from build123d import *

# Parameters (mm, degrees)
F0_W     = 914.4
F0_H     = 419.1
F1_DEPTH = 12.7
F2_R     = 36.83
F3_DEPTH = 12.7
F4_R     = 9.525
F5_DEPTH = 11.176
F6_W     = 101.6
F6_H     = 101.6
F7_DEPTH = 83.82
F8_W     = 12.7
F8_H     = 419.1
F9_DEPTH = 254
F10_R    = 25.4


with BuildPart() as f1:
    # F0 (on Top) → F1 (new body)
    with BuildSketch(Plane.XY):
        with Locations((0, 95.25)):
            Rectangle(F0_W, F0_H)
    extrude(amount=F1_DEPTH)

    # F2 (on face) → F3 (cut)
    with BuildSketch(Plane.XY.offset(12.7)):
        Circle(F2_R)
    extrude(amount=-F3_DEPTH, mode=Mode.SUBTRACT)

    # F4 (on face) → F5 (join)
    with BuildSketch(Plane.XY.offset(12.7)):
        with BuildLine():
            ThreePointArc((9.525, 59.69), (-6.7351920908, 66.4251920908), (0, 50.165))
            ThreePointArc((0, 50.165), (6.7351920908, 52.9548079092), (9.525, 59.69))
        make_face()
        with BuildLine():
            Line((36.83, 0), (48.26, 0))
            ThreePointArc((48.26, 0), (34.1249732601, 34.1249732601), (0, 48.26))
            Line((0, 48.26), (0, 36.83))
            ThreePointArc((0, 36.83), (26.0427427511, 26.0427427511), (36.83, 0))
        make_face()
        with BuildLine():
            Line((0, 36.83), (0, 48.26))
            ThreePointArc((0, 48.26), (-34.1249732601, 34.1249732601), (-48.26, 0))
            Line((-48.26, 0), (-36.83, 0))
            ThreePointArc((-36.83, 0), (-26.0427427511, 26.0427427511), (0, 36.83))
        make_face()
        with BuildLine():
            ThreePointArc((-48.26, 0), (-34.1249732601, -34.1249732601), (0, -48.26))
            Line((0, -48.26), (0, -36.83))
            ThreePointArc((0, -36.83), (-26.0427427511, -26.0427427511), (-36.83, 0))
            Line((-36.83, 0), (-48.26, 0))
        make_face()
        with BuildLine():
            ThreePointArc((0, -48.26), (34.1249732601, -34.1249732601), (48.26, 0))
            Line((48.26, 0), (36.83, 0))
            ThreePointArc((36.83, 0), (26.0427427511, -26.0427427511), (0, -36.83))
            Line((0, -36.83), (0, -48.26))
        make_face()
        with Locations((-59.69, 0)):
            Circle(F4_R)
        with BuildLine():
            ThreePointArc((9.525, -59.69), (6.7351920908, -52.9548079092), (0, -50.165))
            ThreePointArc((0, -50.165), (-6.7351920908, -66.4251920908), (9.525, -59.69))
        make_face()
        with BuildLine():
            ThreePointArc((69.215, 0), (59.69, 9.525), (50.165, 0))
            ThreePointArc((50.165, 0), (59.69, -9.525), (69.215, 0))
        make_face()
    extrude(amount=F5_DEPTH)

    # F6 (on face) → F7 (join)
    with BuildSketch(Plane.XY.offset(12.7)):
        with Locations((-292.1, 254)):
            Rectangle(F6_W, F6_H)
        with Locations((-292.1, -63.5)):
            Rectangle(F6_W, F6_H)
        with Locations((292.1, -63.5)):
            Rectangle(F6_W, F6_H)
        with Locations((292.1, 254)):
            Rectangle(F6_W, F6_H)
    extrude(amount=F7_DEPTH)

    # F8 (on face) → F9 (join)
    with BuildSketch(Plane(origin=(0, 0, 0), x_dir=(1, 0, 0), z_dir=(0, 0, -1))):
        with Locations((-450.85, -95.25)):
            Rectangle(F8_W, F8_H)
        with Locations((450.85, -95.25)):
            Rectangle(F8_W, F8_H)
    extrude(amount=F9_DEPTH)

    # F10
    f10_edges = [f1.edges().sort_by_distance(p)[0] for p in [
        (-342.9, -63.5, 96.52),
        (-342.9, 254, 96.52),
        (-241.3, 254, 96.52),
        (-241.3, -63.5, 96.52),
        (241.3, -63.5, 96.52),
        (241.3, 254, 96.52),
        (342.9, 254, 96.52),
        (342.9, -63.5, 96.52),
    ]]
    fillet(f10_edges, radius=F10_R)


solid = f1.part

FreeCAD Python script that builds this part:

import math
import FreeCAD as App
import Part
import Sketcher
from FreeCAD import Vector
Q = App.Units.Quantity


def edges_at(feature, points):
    """Names of the edges that pass closest to the given points."""
    edges = feature.Shape.Edges
    near = lambda p: min(range(len(edges)), key=lambda i: edges[i].distToShape(Part.Vertex(*p))[0])
    return sorted({f"Edge{near(p) + 1}" for p in points})

doc = App.newDocument("Part")
body = doc.addObject("PartDesign::Body", "Body")

# Sketch on XY plane
sketch1 = doc.addObject("Sketcher::SketchObject", "Sketch")
body.addObject(sketch1)
sketch1.AttachmentSupport = (doc.XY_Plane, [""])
sketch1.MapMode = "FlatFace"
sketch1.addGeometry([
    Part.LineSegment(Vector(-457.2, 304.8, 0), Vector(-457.2, -114.3, 0)),
    Part.LineSegment(Vector(-457.2, -114.3, 0), Vector(457.2, -114.3, 0)),
    Part.LineSegment(Vector(457.2, -114.3, 0), Vector(457.2, 304.8, 0)),
    Part.LineSegment(Vector(457.2, 304.8, 0), Vector(-457.2, 304.8, 0)),
], False)
sketch1.addConstraint([
    Sketcher.Constraint("Coincident", 0, 2, 1, 1),
    Sketcher.Constraint("Coincident", 1, 2, 2, 1),
    Sketcher.Constraint("Coincident", 2, 2, 3, 1),
    Sketcher.Constraint("Coincident", 3, 2, 0, 1),
    Sketcher.Constraint("Vertical", 0),
    Sketcher.Constraint("Horizontal", 1),
    Sketcher.Constraint("Vertical", 2),
    Sketcher.Constraint("Horizontal", 3),
    Sketcher.Constraint("DistanceX", 1, 1, 1, 2, Q("36 in")),
    Sketcher.Constraint("DistanceY", 0, 2, 0, 1, Q("16.5 in")),
    Sketcher.Constraint("DistanceX", 0, 2, -1, 1, Q("18 in")),
    Sketcher.Constraint("DistanceY", -1, 1, 2, 2, Q("12 in")),
])
pad1 = doc.addObject("PartDesign::Pad", "Pad")
body.addObject(pad1)
pad1.Profile = sketch1
pad1.Length = Q("0.5 in")

# Sketch on XY plane
sketch2 = doc.addObject("Sketcher::SketchObject", "Sketch001")
body.addObject(sketch2)
sketch2.AttachmentSupport = (doc.XY_Plane, [""])
sketch2.MapMode = "FlatFace"
sketch2.AttachmentOffset = App.Placement(Vector(0, 0, 0.5 * 25.4), App.Rotation())
sketch2.addGeometry(Part.Circle(Vector(0, 0, 0), Vector(0, 0, 1), 36.83), False)
sketch2.addConstraint([
    Sketcher.Constraint("Coincident", 0, 3, -1, 1),
    Sketcher.Constraint("Diameter", 0, Q("2.9 in")),
])
pocket1 = doc.addObject("PartDesign::Pocket", "Pocket")
body.addObject(pocket1)
pocket1.Profile = sketch2
pocket1.Length = Q("0.5 in")

# Sketch on XY plane
sketch3 = doc.addObject("Sketcher::SketchObject", "Sketch002")
body.addObject(sketch3)
sketch3.AttachmentSupport = (doc.XY_Plane, [""])
sketch3.MapMode = "FlatFace"
sketch3.AttachmentOffset = App.Placement(Vector(0, 0, 0.5 * 25.4), App.Rotation())
sketch3.addGeometry([
    Part.Circle(Vector(0, 59.69, 0), Vector(0, 0, 1), 9.525),  # 0
    Part.ArcOfCircle(Part.Circle(Vector(0, 0, 0), Vector(0, 0, 1), 48.26), math.radians(0), math.radians(90)),  # 1
    Part.ArcOfCircle(Part.Circle(Vector(0, 0, 0), Vector(0, 0, 1), 48.26), math.radians(90), math.radians(180)),  # 2
    Part.ArcOfCircle(Part.Circle(Vector(0, 0, 0), Vector(0, 0, 1), 48.26), math.radians(180), math.radians(270)),  # 3
    Part.ArcOfCircle(Part.Circle(Vector(0, 0, 0), Vector(0, 0, 1), 48.26), math.radians(-90), math.radians(0)),  # 4
    Part.Circle(Vector(0, 0, 0), Vector(0, 0, 1), 36.83),  # 5
    Part.Circle(Vector(-59.69, 0, 0), Vector(0, 0, 1), 9.525),  # 6
    Part.Circle(Vector(0, -59.69, 0), Vector(0, 0, 1), 9.525),  # 7
    Part.Circle(Vector(59.69, 0, 0), Vector(0, 0, 1), 9.525),  # 8
], False)
sketch3.addConstraint([
    Sketcher.Constraint("Tangent", 1, 2, 2, 1),
    Sketcher.Constraint("Tangent", 2, 2, 3, 1),
    Sketcher.Constraint("Tangent", 3, 2, 4, 1),
    Sketcher.Constraint("Tangent", 4, 2, 1, 1),
    Sketcher.Constraint("Coincident", 1, 3, -1, 1),
    Sketcher.Constraint("Coincident", 5, 3, -1, 1),
    Sketcher.Constraint("Equal", 1, 2),
    Sketcher.Constraint("Equal", 0, 6),
    Sketcher.Constraint("Equal", 6, 7),
    Sketcher.Constraint("Equal", 7, 8),
    Sketcher.Constraint("Symmetric", 0, 3, 7, 3, -1, 1),
    Sketcher.Constraint("Symmetric", 6, 3, 8, 3, -1, 1),
    Sketcher.Constraint("PointOnObject", 0, 3, -2),
    Sketcher.Constraint("PointOnObject", 6, 3, -1),
    Sketcher.Constraint("PointOnObject", 1, 2, -2),
    Sketcher.Constraint("PointOnObject", 2, 2, -1),
    Sketcher.Constraint("PointOnObject", 3, 2, -2),
    Sketcher.Constraint("PointOnObject", 4, 2, -1),
    Sketcher.Constraint("Diameter", 5, Q("2.9 in")),
    Sketcher.Constraint("Radius", 1, Q("1.9 in")),
    Sketcher.Constraint("Diameter", 0, Q("0.75 in")),
    Sketcher.Constraint("DistanceY", -1, 1, 0, 3, Q("2.35 in")),
    Sketcher.Constraint("DistanceX", 6, 3, -1, 1, Q("2.35 in")),
])
pad2 = doc.addObject("PartDesign::Pad", "Pad001")
body.addObject(pad2)
pad2.Profile = sketch3
pad2.Length = Q("0.44 in")

# Sketch on XY plane
sketch4 = doc.addObject("Sketcher::SketchObject", "Sketch003")
body.addObject(sketch4)
sketch4.AttachmentSupport = (doc.XY_Plane, [""])
sketch4.MapMode = "FlatFace"
sketch4.AttachmentOffset = App.Placement(Vector(0, 0, 0.5 * 25.4), App.Rotation())
sketch4.addGeometry([
    Part.LineSegment(Vector(-342.9, 304.8, 0), Vector(-342.9, 203.2, 0)),  # 0
    Part.LineSegment(Vector(-342.9, 203.2, 0), Vector(-241.3, 203.2, 0)),  # 1
    Part.LineSegment(Vector(-241.3, 203.2, 0), Vector(-241.3, 304.8, 0)),  # 2
    Part.LineSegment(Vector(-241.3, 304.8, 0), Vector(-342.9, 304.8, 0)),  # 3
    Part.LineSegment(Vector(-342.9, -12.7, 0), Vector(-342.9, -114.3, 0)),  # 4
    Part.LineSegment(Vector(-342.9, -114.3, 0), Vector(-241.3, -114.3, 0)),  # 5
    Part.LineSegment(Vector(-241.3, -114.3, 0), Vector(-241.3, -12.7, 0)),  # 6
    Part.LineSegment(Vector(-241.3, -12.7, 0), Vector(-342.9, -12.7, 0)),  # 7
    Part.LineSegment(Vector(241.3, -12.7, 0), Vector(241.3, -114.3, 0)),  # 8
    Part.LineSegment(Vector(241.3, -114.3, 0), Vector(342.9, -114.3, 0)),  # 9
    Part.LineSegment(Vector(342.9, -114.3, 0), Vector(342.9, -12.7, 0)),  # 10
    Part.LineSegment(Vector(342.9, -12.7, 0), Vector(241.3, -12.7, 0)),  # 11
    Part.LineSegment(Vector(241.3, 304.8, 0), Vector(241.3, 203.2, 0)),  # 12
    Part.LineSegment(Vector(241.3, 203.2, 0), Vector(342.9, 203.2, 0)),  # 13
    Part.LineSegment(Vector(342.9, 203.2, 0), Vector(342.9, 304.8, 0)),  # 14
    Part.LineSegment(Vector(342.9, 304.8, 0), Vector(241.3, 304.8, 0)),  # 15
], False)
sketch4.addConstraint([
    Sketcher.Constraint("Coincident", 0, 2, 1, 1),
    Sketcher.Constraint("Coincident", 1, 2, 2, 1),
    Sketcher.Constraint("Coincident", 2, 2, 3, 1),
    Sketcher.Constraint("Coincident", 3, 2, 0, 1),
    Sketcher.Constraint("Coincident", 4, 2, 5, 1),
    Sketcher.Constraint("Coincident", 5, 2, 6, 1),
    Sketcher.Constraint("Coincident", 6, 2, 7, 1),
    Sketcher.Constraint("Coincident", 7, 2, 4, 1),
    Sketcher.Constraint("Coincident", 8, 2, 9, 1),
    Sketcher.Constraint("Coincident", 9, 2, 10, 1),
    Sketcher.Constraint("Coincident", 10, 2, 11, 1),
    Sketcher.Constraint("Coincident", 11, 2, 8, 1),
    Sketcher.Constraint("Coincident", 12, 2, 13, 1),
    Sketcher.Constraint("Coincident", 13, 2, 14, 1),
    Sketcher.Constraint("Coincident", 14, 2, 15, 1),
    Sketcher.Constraint("Coincident", 15, 2, 12, 1),
    Sketcher.Constraint("Vertical", 0),
    Sketcher.Constraint("Horizontal", 1),
    Sketcher.Constraint("Vertical", 2),
    Sketcher.Constraint("Horizontal", 3),
    Sketcher.Constraint("Vertical", 4),
    Sketcher.Constraint("Horizontal", 5),
    Sketcher.Constraint("Vertical", 6),
    Sketcher.Constraint("Horizontal", 7),
    Sketcher.Constraint("Vertical", 8),
    Sketcher.Constraint("Horizontal", 9),
    Sketcher.Constraint("Vertical", 10),
    Sketcher.Constraint("Horizontal", 11),
    Sketcher.Constraint("Vertical", 12),
    Sketcher.Constraint("Horizontal", 13),
    Sketcher.Constraint("Vertical", 14),
    Sketcher.Constraint("Horizontal", 15),
    Sketcher.Constraint("Symmetric", 5, 2, 8, 2, -2),
    Sketcher.Constraint("Symmetric", 7, 2, 10, 2, -2),
    Sketcher.Constraint("Symmetric", 1, 2, 12, 2, -2),
    Sketcher.Constraint("Symmetric", 3, 2, 14, 2, -2),
    Sketcher.Constraint("Vertical", 3, 2, 4, 2),
    Sketcher.Constraint("Vertical", 2, 2, 5, 2),
    Sketcher.Constraint("Equal", 15, 0),
    Sketcher.Constraint("Equal", 2, 4),
    Sketcher.Constraint("DistanceX", 1, 1, 1, 2, Q("4 in")),
    Sketcher.Constraint("DistanceY", -1, 1, 0, 2, Q("8 in")),
    Sketcher.Constraint("DistanceX", 5, 2, 8, 2, Q("19 in")),
    Sketcher.Constraint("DistanceY", 4, 2, -1, 1, Q("4.5 in")),
])
pad3 = doc.addObject("PartDesign::Pad", "Pad002")
body.addObject(pad3)
pad3.Profile = sketch4
pad3.Length = Q("3.3 in")

# Sketch on XY plane
sketch5 = doc.addObject("Sketcher::SketchObject", "Sketch004")
body.addObject(sketch5)
sketch5.AttachmentSupport = (doc.XY_Plane, [""])
sketch5.MapMode = "FlatFace"
sketch5.addGeometry([
    Part.LineSegment(Vector(-457.2, -114.3, 0), Vector(-457.2, 304.8, 0)),  # 0
    Part.LineSegment(Vector(-457.2, 304.8, 0), Vector(-444.5, 304.8, 0)),  # 1
    Part.LineSegment(Vector(-444.5, 304.8, 0), Vector(-444.5, -114.3, 0)),  # 2
    Part.LineSegment(Vector(-444.5, -114.3, 0), Vector(-457.2, -114.3, 0)),  # 3
    Part.LineSegment(Vector(444.5, -114.3, 0), Vector(444.5, 304.8, 0)),  # 4
    Part.LineSegment(Vector(444.5, 304.8, 0), Vector(457.2, 304.8, 0)),  # 5
    Part.LineSegment(Vector(457.2, 304.8, 0), Vector(457.2, -114.3, 0)),  # 6
    Part.LineSegment(Vector(457.2, -114.3, 0), Vector(444.5, -114.3, 0)),  # 7
], False)
sketch5.addConstraint([
    Sketcher.Constraint("Coincident", 0, 2, 1, 1),
    Sketcher.Constraint("Coincident", 1, 2, 2, 1),
    Sketcher.Constraint("Coincident", 2, 2, 3, 1),
    Sketcher.Constraint("Coincident", 3, 2, 0, 1),
    Sketcher.Constraint("Coincident", 4, 2, 5, 1),
    Sketcher.Constraint("Coincident", 5, 2, 6, 1),
    Sketcher.Constraint("Coincident", 6, 2, 7, 1),
    Sketcher.Constraint("Coincident", 7, 2, 4, 1),
    Sketcher.Constraint("Vertical", 0),
    Sketcher.Constraint("Horizontal", 1),
    Sketcher.Constraint("Vertical", 2),
    Sketcher.Constraint("Horizontal", 3),
    Sketcher.Constraint("Vertical", 4),
    Sketcher.Constraint("Horizontal", 5),
    Sketcher.Constraint("Vertical", 6),
    Sketcher.Constraint("Horizontal", 7),
    Sketcher.Constraint("Symmetric", 1, 2, 4, 2, -2),
    Sketcher.Constraint("Symmetric", 3, 2, 6, 2, -2),
    Sketcher.Constraint("DistanceX", 1, 1, 1, 2, Q("0.5 in")),
    Sketcher.Constraint("DistanceY", 0, 1, 0, 2, Q("16.5 in")),
    Sketcher.Constraint("DistanceX", 0, 2, -1, 1, Q("18 in")),
    Sketcher.Constraint("DistanceY", -1, 1, 0, 2, Q("12 in")),
])
pad4 = doc.addObject("PartDesign::Pad", "Pad003")
body.addObject(pad4)
pad4.Profile = sketch5
pad4.Length = Q("10 in")
pad4.Reversed = True
doc.recompute()

fillet = doc.addObject("PartDesign::Fillet", "Fillet")
body.addObject(fillet)
fillet.Base = (pad4, edges_at(pad4, [
    (-342.9, -63.5, 96.52),
    (-342.9, 254, 96.52),
    (-241.3, 254, 96.52),
    (-241.3, -63.5, 96.52),
    (241.3, -63.5, 96.52),
    (241.3, 254, 96.52),
    (342.9, 254, 96.52),
    (342.9, -63.5, 96.52),
]))
fillet.Radius = Q("1 in")

doc.recompute()
